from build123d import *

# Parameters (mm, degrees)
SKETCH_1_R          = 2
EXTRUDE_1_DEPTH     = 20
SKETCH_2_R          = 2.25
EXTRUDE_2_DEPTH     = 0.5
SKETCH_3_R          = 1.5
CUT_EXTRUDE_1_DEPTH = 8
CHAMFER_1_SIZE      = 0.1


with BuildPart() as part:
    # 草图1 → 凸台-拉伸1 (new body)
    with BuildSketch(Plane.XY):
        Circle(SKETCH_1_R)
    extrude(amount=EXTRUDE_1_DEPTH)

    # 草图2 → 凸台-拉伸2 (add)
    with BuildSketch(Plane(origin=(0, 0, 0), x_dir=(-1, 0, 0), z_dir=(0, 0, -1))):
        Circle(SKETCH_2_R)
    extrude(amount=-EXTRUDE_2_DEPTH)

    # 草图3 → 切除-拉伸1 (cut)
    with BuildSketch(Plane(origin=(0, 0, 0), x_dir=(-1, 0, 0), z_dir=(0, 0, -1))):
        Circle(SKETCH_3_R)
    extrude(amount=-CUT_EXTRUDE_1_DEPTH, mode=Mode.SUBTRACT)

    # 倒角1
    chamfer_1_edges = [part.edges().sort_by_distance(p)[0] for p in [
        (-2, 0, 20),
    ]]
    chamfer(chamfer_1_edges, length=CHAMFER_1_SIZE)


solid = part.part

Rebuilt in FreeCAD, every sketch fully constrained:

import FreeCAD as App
import Part
import Sketcher
Q = App.Units.Quantity


def edges_at(feature, points):
    """Names of the edges that pass closest to the given points."""
    edges = feature.Shape.Edges
    near = lambda p: min(range(len(edges)), key=lambda i: edges[i].distToShape(Part.Vertex(*p))[0])
    return sorted({f"Edge{near(p) + 1}" for p in points})

doc = App.newDocument("Part")
body = doc.addObject("PartDesign::Body", "Body")

sketch1 = body.newObject("Sketcher::SketchObject", "Sketch")
sketch1.AttachmentSupport = (doc.getObject("XY_Plane"), [""])
sketch1.MapMode = "FlatFace"
sketch1.addGeometry(Part.Circle(App.Vector(0, 0, 0), App.Vector(0, 0, 1), 2), False)
sketch1.addConstraint([
    Sketcher.Constraint("Coincident", 0, 3, -1, 1),
    Sketcher.Constraint("Diameter", 0, Q("4 mm")),
])
pad1 = body.newObject("PartDesign::Pad", "Pad")
pad1.Profile = sketch1
pad1.Length = 20

sketch2 = body.newObject("Sketcher::SketchObject", "Sketch001")
sketch2.AttachmentSupport = (doc.getObject("XY_Plane"), [""])
sketch2.MapMode = "FlatFace"
sketch2.addGeometry(Part.Circle(App.Vector(0, 0, 0), App.Vector(0, 0, 1), 2.2), False)
sketch2.addConstraint([
    Sketcher.Constraint("Coincident", 0, 3, -1, 1),
    Sketcher.Constraint("Diameter", 0, Q("4.5 mm")),
])
pad2 = body.newObject("PartDesign::Pad", "Pad001")
pad2.Profile = sketch2
pad2.Length = 0.5

sketch3 = body.newObject("Sketcher::SketchObject", "Sketch002")
sketch3.AttachmentSupport = (doc.getObject("XY_Plane"), [""])
sketch3.MapMode = "FlatFace"
sketch3.addGeometry(Part.Circle(App.Vector(0, 0, 0), App.Vector(0, 0, 1), 1.5), False)
sketch3.addConstraint([
    Sketcher.Constraint("Coincident", 0, 3, -1, 1),
    Sketcher.Constraint("Diameter", 0, Q("3 mm")),
])
pocket1 = body.newObject("PartDesign::Pocket", "Pocket")
pocket1.Profile = sketch3
pocket1.Length = 8
pocket1.Reversed = True
doc.recompute()

chamfer = body.newObject("PartDesign::Chamfer", "Chamfer")
chamfer.Base = (pocket1, edges_at(pocket1, [(-2, 0, 20)]))
chamfer.Size = 0.1

doc.recompute()
